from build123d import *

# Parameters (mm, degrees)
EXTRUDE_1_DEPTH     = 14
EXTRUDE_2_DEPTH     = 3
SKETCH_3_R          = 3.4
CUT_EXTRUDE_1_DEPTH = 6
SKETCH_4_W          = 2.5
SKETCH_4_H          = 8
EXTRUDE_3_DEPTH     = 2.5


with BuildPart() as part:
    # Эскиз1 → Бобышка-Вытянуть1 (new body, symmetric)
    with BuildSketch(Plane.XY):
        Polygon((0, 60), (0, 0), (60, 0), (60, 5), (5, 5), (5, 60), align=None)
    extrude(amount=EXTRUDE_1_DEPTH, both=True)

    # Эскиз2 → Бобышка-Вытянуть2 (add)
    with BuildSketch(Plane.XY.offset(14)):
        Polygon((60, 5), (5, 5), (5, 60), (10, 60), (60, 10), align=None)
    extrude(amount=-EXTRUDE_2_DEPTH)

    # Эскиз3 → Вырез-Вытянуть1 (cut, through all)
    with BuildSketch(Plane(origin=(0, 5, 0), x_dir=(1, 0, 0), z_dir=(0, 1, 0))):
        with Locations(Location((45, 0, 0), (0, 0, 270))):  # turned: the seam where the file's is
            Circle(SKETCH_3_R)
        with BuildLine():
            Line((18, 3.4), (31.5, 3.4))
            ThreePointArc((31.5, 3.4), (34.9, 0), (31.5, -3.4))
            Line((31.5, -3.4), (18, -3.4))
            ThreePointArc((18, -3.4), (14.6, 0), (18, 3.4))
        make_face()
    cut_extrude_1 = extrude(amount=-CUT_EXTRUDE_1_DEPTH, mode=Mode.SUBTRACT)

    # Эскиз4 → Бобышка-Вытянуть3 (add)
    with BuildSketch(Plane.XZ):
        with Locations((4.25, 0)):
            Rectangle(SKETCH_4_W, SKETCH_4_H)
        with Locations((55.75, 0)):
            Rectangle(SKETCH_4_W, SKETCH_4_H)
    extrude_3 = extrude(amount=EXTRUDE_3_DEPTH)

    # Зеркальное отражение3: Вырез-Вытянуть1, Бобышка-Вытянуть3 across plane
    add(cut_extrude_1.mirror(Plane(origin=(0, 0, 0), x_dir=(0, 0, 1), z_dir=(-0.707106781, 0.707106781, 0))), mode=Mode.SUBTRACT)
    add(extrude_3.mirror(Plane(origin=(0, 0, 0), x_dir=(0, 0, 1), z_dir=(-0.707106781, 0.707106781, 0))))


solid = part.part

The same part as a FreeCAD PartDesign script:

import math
import FreeCAD as App
import Part
import Sketcher
Q = App.Units.Quantity


def add_polygon(sketch, points):
    """Adds a closed chain of lines whose ends are joined by coincident constraints."""
    first, n = sketch.GeometryCount, len(points)
    for a, b in zip(points, points[1:] + points[:1]):
        sketch.addGeometry(Part.LineSegment(App.Vector(*a, 0), App.Vector(*b, 0)), False)
    for i in range(n):
        sketch.addConstraint(Sketcher.Constraint("Coincident", first + i, 2, first + (i + 1) % n, 1))

doc = App.newDocument("Part")
body = doc.addObject("PartDesign::Body", "Body")

sketch1 = doc.addObject("Sketcher::SketchObject", "Sketch")
body.addObject(sketch1)
sketch1.AttachmentSupport = (doc.XY_Plane, [""])
sketch1.MapMode = "FlatFace"
add_polygon(sketch1, [(0, 60), (0, 0), (60, 0), (60, 5), (5, 5), (5, 60)])
sketch1.addConstraint(Sketcher.Constraint("Vertical", 0))
sketch1.addConstraint(Sketcher.Constraint("Horizontal", 1))
sketch1.addConstraint(Sketcher.Constraint("Vertical", 2))
sketch1.addConstraint(Sketcher.Constraint("Horizontal", 3))
sketch1.addConstraint(Sketcher.Constraint("Vertical", 4))
sketch1.addConstraint(Sketcher.Constraint("Horizontal", 5))
sketch1.addConstraint(Sketcher.Constraint("Coincident", 0, 2, -1, 1))
sketch1.addConstraint(Sketcher.Constraint("Equal", 1, 0))
sketch1.addConstraint(Sketcher.Constraint("Equal", 5, 2))
sketch1.addConstraint(Sketcher.Constraint("DistanceX", 1, 1, 1, 2, Q("60 mm")))
sketch1.addConstraint(Sketcher.Constraint("DistanceX", 3, 2, 3, 1, Q("55 mm")))
pad1 = doc.addObject("PartDesign::Pad", "Pad")
body.addObject(pad1)
pad1.Profile = sketch1
pad1.Length = 28
pad1.Midplane = True

sketch2 = doc.addObject("Sketcher::SketchObject", "Sketch001")
body.addObject(sketch2)
sketch2.AttachmentSupport = (doc.XY_Plane, [""])
sketch2.MapMode = "FlatFace"
sketch2.AttachmentOffset = App.Placement(App.Vector(0, 0, 14), App.Rotation())
add_polygon(sketch2, [(5, 5), (60, 5), (60, 10), (10, 60), (5, 60)])
sketch2.addConstraint(Sketcher.Constraint("Horizontal", 0))
sketch2.addConstraint(Sketcher.Constraint("Vertical", 1))
sketch2.addConstraint(Sketcher.Constraint("Horizontal", 3))
sketch2.addConstraint(Sketcher.Constraint("Vertical", 4))
sketch2.addConstraint(Sketcher.Constraint("Equal", 3, 1))
sketch2.addConstraint(Sketcher.Constraint("Equal", 0, 4))
sketch2.addConstraint(Sketcher.Constraint("DistanceX", 0, 1, 0, 2, Q("55 mm")))
sketch2.addConstraint(Sketcher.Constraint("DistanceX", 3, 2, 3, 1, Q("5 mm")))
sketch2.addConstraint(Sketcher.Constraint("DistanceX", -1, 1, 0, 2, Q("60 mm")))
sketch2.addConstraint(Sketcher.Constraint("DistanceY", -1, 1, 0, 2, Q("5 mm")))
pad2 = doc.addObject("PartDesign::Pad", "Pad001")
body.addObject(pad2)
pad2.Profile = sketch2
pad2.Length = 3
pad2.Reversed = True

sketch3 = doc.addObject("Sketcher::SketchObject", "Sketch002")
body.addObject(sketch3)
sketch3.AttachmentSupport = (doc.XZ_Plane, [""])
sketch3.MapMode = "FlatFace"
sketch3.AttachmentOffset = App.Placement(App.Vector(0, 0, -5), App.Rotation())
sketch3.addGeometry(Part.Circle(App.Vector(45, 0, 0), App.Vector(0, 0, 1), 3.4), False)
sketch3.addGeometry(Part.LineSegment(App.Vector(31.5, -3.4, 0), App.Vector(18, -3.4, 0)), False)
sketch3.addGeometry(Part.ArcOfCircle(Part.Circle(App.Vector(18, 0, 0), App.Vector(0, 0, 1), 3.4), math.radians(90), math.radians(270)), False)
sketch3.addGeometry(Part.LineSegment(App.Vector(18, 3.4, 0), App.Vector(31.5, 3.4, 0)), False)
sketch3.addGeometry(Part.ArcOfCircle(Part.Circle(App.Vector(31.5, 0, 0), App.Vector(0, 0, 1), 3.4), math.radians(-90), math.radians(90)), False)
sketch3.addConstraint(Sketcher.Constraint("Tangent", 1, 2, 2, 2))
sketch3.addConstraint(Sketcher.Constraint("Tangent", 2, 1, 3, 1))
sketch3.addConstraint(Sketcher.Constraint("Tangent", 3, 2, 4, 2))
sketch3.addConstraint(Sketcher.Constraint("Tangent", 4, 1, 1, 1))
sketch3.addConstraint(Sketcher.Constraint("Horizontal", 1))
sketch3.addConstraint(Sketcher.Constraint("Horizontal", 3))
sketch3.addConstraint(Sketcher.Constraint("Equal", 0, 2))
sketch3.addConstraint(Sketcher.Constraint("PointOnObject", 0, 3, -1))
sketch3.addConstraint(Sketcher.Constraint("PointOnObject", 2, 3, -1))
sketch3.addConstraint(Sketcher.Constraint("Diameter", 0, Q("6.8 mm")))
sketch3.addConstraint(Sketcher.Constraint("DistanceX", 1, 2, 1, 1, Q("13.5 mm")))
sketch3.addConstraint(Sketcher.Constraint("DistanceX", -1, 1, 0, 3, Q("45 mm")))
sketch3.addConstraint(Sketcher.Constraint("DistanceX", -1, 1, 2, 3, Q("18 mm")))
pocket1 = doc.addObject("PartDesign::Pocket", "Pocket")
body.addObject(pocket1)
pocket1.Profile = sketch3
pocket1.Type = "ThroughAll"
pocket1.Reversed = True

sketch4 = doc.addObject("Sketcher::SketchObject", "Sketch003")
body.addObject(sketch4)
sketch4.AttachmentSupport = (doc.XZ_Plane, [""])
sketch4.MapMode = "FlatFace"
add_polygon(sketch4, [(3, 4), (3, -4), (5.5, -4), (5.5, 4)])
add_polygon(sketch4, [(54.5, 4), (54.5, -4), (57, -4), (57, 4)])
sketch4.addConstraint(Sketcher.Constraint("Vertical", 0))
sketch4.addConstraint(Sketcher.Constraint("Horizontal", 1))
sketch4.addConstraint(Sketcher.Constraint("Vertical", 2))
sketch4.addConstraint(Sketcher.Constraint("Horizontal", 3))
sketch4.addConstraint(Sketcher.Constraint("Vertical", 4))
sketch4.addConstraint(Sketcher.Constraint("Horizontal", 5))
sketch4.addConstraint(Sketcher.Constraint("Vertical", 6))
sketch4.addConstraint(Sketcher.Constraint("Horizontal", 7))
sketch4.addConstraint(Sketcher.Constraint("Horizontal", 1, 2, 4, 2))
sketch4.addConstraint(Sketcher.Constraint("Horizontal", 3, 2, 6, 2))
sketch4.addConstraint(Sketcher.Constraint("Equal", 3, 5))
sketch4.addConstraint(Sketcher.Constraint("DistanceY", 0, 2, 0, 1, Q("8 mm")))
sketch4.addConstraint(Sketcher.Constraint("DistanceX", 1, 1, 1, 2, Q("2.5 mm")))
sketch4.addConstraint(Sketcher.Constraint("DistanceX", -1, 1, 0, 2, Q("3 mm")))
sketch4.addConstraint(Sketcher.Constraint("DistanceY", 0, 2, -1, 1, Q("4 mm")))
sketch4.addConstraint(Sketcher.Constraint("DistanceX", -1, 1, 5, 2, Q("57 mm")))
pad3 = doc.addObject("PartDesign::Pad", "Pad002")
body.addObject(pad3)
pad3.Profile = sketch4
pad3.Length = 2.5
doc.recompute()

datumplane = doc.addObject("PartDesign::Plane", "DatumPlane")
body.addObject(datumplane)
datumplane.Placement = App.Placement(App.Vector(0, 0, 0), App.Rotation(App.Vector(0.707106781, 0.707106781, 0), App.Vector(0, 0, -1), App.Vector(-0.707106781, 0.707106781, 0), "ZXY"))
mirrored = doc.addObject("PartDesign::Mirrored", "Mirrored")
body.addObject(mirrored)
mirrored.Originals = [pocket1, pad3]
mirrored.MirrorPlane = (datumplane, [""])
body.Tip = mirrored

doc.recompute()
